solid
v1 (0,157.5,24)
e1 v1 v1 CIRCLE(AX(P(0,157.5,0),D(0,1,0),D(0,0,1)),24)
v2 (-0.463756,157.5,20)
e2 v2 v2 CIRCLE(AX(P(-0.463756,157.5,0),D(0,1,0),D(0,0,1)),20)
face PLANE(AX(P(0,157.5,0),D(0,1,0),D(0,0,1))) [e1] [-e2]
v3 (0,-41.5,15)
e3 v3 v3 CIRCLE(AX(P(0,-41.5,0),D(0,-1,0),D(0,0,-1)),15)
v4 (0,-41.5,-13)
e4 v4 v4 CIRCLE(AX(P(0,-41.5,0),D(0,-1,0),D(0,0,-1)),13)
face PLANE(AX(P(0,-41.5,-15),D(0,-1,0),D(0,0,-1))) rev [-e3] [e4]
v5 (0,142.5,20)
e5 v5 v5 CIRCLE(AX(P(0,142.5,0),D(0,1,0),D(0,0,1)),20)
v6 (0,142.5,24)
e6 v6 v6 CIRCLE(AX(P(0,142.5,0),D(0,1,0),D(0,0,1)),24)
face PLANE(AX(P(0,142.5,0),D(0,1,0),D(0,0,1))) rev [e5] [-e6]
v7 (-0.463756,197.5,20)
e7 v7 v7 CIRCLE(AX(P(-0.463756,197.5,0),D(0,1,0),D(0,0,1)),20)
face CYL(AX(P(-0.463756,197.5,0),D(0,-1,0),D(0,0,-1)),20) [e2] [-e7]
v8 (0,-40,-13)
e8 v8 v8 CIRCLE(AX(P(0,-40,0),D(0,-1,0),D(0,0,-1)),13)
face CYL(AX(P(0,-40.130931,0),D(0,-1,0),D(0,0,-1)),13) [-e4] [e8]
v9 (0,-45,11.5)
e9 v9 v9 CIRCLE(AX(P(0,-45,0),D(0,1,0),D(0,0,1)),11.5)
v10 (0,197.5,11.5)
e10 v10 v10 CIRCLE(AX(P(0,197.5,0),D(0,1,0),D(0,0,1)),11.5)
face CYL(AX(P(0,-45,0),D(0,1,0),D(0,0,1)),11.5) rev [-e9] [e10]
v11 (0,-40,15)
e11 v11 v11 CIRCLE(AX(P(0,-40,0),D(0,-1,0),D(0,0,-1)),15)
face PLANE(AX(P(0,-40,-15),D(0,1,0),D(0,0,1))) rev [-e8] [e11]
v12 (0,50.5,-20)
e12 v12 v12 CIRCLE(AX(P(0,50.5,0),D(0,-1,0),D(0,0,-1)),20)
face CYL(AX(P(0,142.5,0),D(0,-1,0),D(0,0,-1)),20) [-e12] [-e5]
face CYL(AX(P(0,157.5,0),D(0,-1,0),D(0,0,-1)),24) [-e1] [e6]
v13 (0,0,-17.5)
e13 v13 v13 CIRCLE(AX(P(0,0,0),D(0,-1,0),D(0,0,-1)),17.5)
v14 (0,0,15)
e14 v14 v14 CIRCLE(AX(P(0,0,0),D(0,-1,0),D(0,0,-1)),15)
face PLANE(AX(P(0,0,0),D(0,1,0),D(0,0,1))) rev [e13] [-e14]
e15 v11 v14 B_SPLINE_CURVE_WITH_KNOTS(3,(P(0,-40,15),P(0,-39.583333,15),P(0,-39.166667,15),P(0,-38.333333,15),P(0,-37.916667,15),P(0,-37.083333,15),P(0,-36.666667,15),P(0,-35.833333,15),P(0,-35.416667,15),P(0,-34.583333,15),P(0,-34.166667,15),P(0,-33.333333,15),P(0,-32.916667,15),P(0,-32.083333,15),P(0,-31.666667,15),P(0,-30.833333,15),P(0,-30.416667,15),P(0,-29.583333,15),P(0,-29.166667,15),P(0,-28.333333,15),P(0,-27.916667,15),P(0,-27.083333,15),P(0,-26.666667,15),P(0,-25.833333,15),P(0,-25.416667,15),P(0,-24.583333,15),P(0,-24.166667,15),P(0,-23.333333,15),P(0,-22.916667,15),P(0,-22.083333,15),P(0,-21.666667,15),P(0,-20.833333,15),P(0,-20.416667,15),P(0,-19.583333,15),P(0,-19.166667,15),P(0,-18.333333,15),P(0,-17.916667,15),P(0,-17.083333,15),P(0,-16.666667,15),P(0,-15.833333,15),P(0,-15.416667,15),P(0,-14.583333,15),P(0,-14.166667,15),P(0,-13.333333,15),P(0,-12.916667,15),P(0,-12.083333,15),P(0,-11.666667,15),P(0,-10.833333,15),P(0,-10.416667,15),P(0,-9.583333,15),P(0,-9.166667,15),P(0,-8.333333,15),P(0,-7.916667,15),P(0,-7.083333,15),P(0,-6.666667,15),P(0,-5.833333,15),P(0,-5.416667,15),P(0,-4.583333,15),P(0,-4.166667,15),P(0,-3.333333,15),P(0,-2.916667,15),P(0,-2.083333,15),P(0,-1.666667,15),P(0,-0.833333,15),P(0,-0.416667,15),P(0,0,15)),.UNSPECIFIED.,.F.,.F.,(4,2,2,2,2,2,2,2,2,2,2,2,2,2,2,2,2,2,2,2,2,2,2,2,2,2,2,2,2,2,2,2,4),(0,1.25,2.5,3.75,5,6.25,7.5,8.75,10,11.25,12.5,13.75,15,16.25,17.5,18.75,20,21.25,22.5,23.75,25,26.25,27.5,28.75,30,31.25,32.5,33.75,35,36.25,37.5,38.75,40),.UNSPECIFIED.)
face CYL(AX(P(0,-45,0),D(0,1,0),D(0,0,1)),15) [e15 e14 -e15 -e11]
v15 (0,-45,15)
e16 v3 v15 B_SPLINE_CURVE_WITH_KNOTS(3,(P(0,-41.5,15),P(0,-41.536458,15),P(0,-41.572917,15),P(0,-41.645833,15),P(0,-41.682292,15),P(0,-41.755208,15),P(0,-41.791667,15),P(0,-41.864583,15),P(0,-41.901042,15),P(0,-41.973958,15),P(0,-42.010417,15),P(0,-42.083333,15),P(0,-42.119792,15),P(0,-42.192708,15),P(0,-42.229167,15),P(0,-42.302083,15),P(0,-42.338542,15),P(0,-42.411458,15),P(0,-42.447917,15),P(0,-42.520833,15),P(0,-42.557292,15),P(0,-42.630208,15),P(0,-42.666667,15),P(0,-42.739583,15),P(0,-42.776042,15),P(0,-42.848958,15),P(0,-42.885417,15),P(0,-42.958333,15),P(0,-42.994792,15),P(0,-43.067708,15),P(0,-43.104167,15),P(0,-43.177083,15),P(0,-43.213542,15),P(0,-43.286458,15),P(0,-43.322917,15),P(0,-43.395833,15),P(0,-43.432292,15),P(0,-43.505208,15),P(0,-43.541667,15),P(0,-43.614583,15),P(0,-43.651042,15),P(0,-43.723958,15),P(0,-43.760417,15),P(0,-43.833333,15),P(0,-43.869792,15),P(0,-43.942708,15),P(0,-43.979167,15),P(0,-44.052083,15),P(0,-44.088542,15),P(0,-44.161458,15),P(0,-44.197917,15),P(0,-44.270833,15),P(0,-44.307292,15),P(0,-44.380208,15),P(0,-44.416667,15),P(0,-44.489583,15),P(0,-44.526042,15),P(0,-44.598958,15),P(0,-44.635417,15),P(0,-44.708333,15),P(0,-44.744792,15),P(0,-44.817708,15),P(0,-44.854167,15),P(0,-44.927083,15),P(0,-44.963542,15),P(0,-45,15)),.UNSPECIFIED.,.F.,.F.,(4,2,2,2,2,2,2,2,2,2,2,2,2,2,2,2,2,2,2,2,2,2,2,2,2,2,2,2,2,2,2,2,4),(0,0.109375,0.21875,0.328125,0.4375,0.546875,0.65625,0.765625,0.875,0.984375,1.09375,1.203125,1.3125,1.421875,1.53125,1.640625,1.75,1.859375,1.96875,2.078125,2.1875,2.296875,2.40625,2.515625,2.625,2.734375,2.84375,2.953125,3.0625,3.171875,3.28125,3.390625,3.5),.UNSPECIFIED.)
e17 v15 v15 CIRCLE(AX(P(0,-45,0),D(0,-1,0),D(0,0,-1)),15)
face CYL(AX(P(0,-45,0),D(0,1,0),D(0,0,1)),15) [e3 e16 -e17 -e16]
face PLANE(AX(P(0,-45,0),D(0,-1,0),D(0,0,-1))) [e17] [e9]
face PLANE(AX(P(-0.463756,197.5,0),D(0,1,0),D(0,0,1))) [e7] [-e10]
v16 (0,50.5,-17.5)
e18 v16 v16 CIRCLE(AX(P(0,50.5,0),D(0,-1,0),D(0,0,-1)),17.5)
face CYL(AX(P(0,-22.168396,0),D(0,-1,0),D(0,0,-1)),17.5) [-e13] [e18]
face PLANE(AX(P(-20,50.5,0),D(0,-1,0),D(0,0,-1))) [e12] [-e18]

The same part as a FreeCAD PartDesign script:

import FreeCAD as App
import Part
import Sketcher

V = App.Vector

doc = App.newDocument("Part")
body = doc.addObject("PartDesign::Body", "Body")

# Sketch on XZ plane
sketch1 = body.newObject("Sketcher::SketchObject", "Sketch")
sketch1.AttachmentSupport = (doc.getObject("XZ_Plane"), [""])
sketch1.MapMode = "FlatFace"
sketch1.addGeometry(Part.Circle(V(0, 0, 0), V(0, 0, 1), 20), False)
sketch1.addConstraint(Sketcher.Constraint("Coincident", 0, 3, -1, 1))
sketch1.addConstraint(Sketcher.Constraint("Diameter", 0, 40.0))
pad1 = body.newObject("PartDesign::Pad", "Pad")
pad1.Profile = sketch1
pad1.Length = 142.5
pad1.Reversed = True

# Sketch on XZ plane
sketch2 = body.newObject("Sketcher::SketchObject", "Sketch001")
sketch2.AttachmentSupport = (doc.getObject("XZ_Plane"), [""])
sketch2.MapMode = "FlatFace"
sketch2.AttachmentOffset = App.Placement(V(0, 0, -142.5), App.Rotation())
sketch2.addGeometry(Part.Circle(V(0, 0, 0), V(0, 0, 1), 24), False)
sketch2.addConstraint(Sketcher.Constraint("Coincident", 0, 3, -1, 1))
sketch2.addConstraint(Sketcher.Constraint("Diameter", 0, 48.0))
pad2 = body.newObject("PartDesign::Pad", "Pad001")
pad2.Profile = sketch2
pad2.Length = 15
pad2.Reversed = True

# Sketch on XZ plane
sketch3 = body.newObject("Sketcher::SketchObject", "Sketch002")
sketch3.AttachmentSupport = (doc.getObject("XZ_Plane"), [""])
sketch3.MapMode = "FlatFace"
sketch3.AttachmentOffset = App.Placement(V(0, 0, -157.5), App.Rotation())
sketch3.addGeometry(Part.Circle(V(0, 0, 0), V(0, 0, 1), 20), False)
sketch3.addConstraint(Sketcher.Constraint("PointOnObject", 0, 3, -1))
sketch3.addConstraint(Sketcher.Constraint("Diameter", 0, 40.0))
sketch3.addConstraint(Sketcher.Constraint("DistanceX", 0, 3, -1, 1, 0.463756))
pad3 = body.newObject("PartDesign::Pad", "Pad002")
pad3.Profile = sketch3
pad3.Length = 40
pad3.Reversed = True

# Sketch on XZ plane
sketch4 = body.newObject("Sketcher::SketchObject", "Sketch003")
sketch4.AttachmentSupport = (doc.getObject("XZ_Plane"), [""])
sketch4.MapMode = "FlatFace"
sketch4.addGeometry(Part.Circle(V(0, 0, 0), V(0, 0, 1), 15), False)
sketch4.addConstraint(Sketcher.Constraint("Coincident", 0, 3, -1, 1))
sketch4.addConstraint(Sketcher.Constraint("Diameter", 0, 30.0))
pad4 = body.newObject("PartDesign::Pad", "Pad003")
pad4.Profile = sketch4
pad4.Length = 45

# Sketch on XZ plane
sketch5 = body.newObject("Sketcher::SketchObject", "Sketch004")
sketch5.AttachmentSupport = (doc.getObject("XZ_Plane"), [""])
sketch5.MapMode = "FlatFace"
sketch5.AttachmentOffset = App.Placement(V(0, 0, -197.5), App.Rotation())
sketch5.addGeometry(Part.Circle(V(0, 0, 0), V(0, 0, 1), 12), False)
sketch5.addConstraint(Sketcher.Constraint("Coincident", 0, 3, -1, 1))
sketch5.addConstraint(Sketcher.Constraint("Diameter", 0, 23.0))
pocket1 = body.newObject("PartDesign::Pocket", "Pocket")
pocket1.Profile = sketch5
pocket1.Type = "ThroughAll"
pocket1.Midplane = True

# Sketch on YZ plane
sketch6 = body.newObject("Sketcher::SketchObject", "Sketch005")
sketch6.AttachmentSupport = (doc.getObject("YZ_Plane"), [""])
sketch6.MapMode = "FlatFace"
sketch6.addGeometry(Part.LineSegment(V(-40, -13, 0), V(-41.5, -13, 0)), False)
sketch6.addGeometry(Part.LineSegment(V(-41.5, -13, 0), V(-41.5, -15, 0)), False)
sketch6.addGeometry(Part.LineSegment(V(-41.5, -15, 0), V(-40, -15, 0)), False)
sketch6.addGeometry(Part.LineSegment(V(-40, -15, 0), V(-40, -13, 0)), False)
sketch6.addConstraint(Sketcher.Constraint("Coincident", 0, 2, 1, 1))
sketch6.addConstraint(Sketcher.Constraint("Coincident", 1, 2, 2, 1))
sketch6.addConstraint(Sketcher.Constraint("Coincident", 2, 2, 3, 1))
sketch6.addConstraint(Sketcher.Constraint("Coincident", 3, 2, 0, 1))
sketch6.addConstraint(Sketcher.Constraint("Horizontal", 0))
sketch6.addConstraint(Sketcher.Constraint("Vertical", 1))
sketch6.addConstraint(Sketcher.Constraint("Horizontal", 2))
sketch6.addConstraint(Sketcher.Constraint("Vertical", 3))
sketch6.addConstraint(Sketcher.Constraint("DistanceY", 1, 2, 1, 1, 2.0))
sketch6.addConstraint(Sketcher.Constraint("DistanceX", 0, 2, 0, 1, 1.5))
sketch6.addConstraint(Sketcher.Constraint("DistanceY", 0, 2, -1, 1, 13.0))
sketch6.addConstraint(Sketcher.Constraint("DistanceX", 2, 2, -1, 1, 40.0))
groove = body.newObject("PartDesign::Groove", "Groove")
groove.Profile = sketch6
groove.ReferenceAxis = (sketch6, ["H_Axis"])
groove.Angle = 360

# Sketch on XY plane
sketch7 = body.newObject("Sketcher::SketchObject", "Sketch006")
sketch7.AttachmentSupport = (doc.getObject("XY_Plane"), [""])
sketch7.MapMode = "FlatFace"
sketch7.addGeometry(Part.LineSegment(V(-20, 50.5, 0), V(-20, 0, 0)), False)
sketch7.addGeometry(Part.LineSegment(V(-20, 0, 0), V(-17.5, 0, 0)), False)
sketch7.addGeometry(Part.LineSegment(V(-17.5, 0, 0), V(-17.5, 50.5, 0)), False)
sketch7.addGeometry(Part.LineSegment(V(-17.5, 50.5, 0), V(-20, 50.5, 0)), False)
sketch7.addConstraint(Sketcher.Constraint("Coincident", 0, 2, 1, 1))
sketch7.addConstraint(Sketcher.Constraint("Coincident", 1, 2, 2, 1))
sketch7.addConstraint(Sketcher.Constraint("Coincident", 2, 2, 3, 1))
sketch7.addConstraint(Sketcher.Constraint("Coincident", 3, 2, 0, 1))
sketch7.addConstraint(Sketcher.Constraint("Vertical", 0))
sketch7.addConstraint(Sketcher.Constraint("Horizontal", 1))
sketch7.addConstraint(Sketcher.Constraint("Vertical", 2))
sketch7.addConstraint(Sketcher.Constraint("Horizontal", 3))
sketch7.addConstraint(Sketcher.Constraint("PointOnObject", 0, 2, -1))
sketch7.addConstraint(Sketcher.Constraint("DistanceX", 1, 1, 1, 2, 2.5))
sketch7.addConstraint(Sketcher.Constraint("DistanceY", 0, 2, 0, 1, 50.5))
sketch7.addConstraint(Sketcher.Constraint("DistanceX", 0, 2, -1, 1, 20.0))
groove2 = body.newObject("PartDesign::Groove", "Groove001")
groove2.Profile = sketch7
groove2.ReferenceAxis = (sketch7, ["V_Axis"])
groove2.Angle = 360

doc.recompute()
